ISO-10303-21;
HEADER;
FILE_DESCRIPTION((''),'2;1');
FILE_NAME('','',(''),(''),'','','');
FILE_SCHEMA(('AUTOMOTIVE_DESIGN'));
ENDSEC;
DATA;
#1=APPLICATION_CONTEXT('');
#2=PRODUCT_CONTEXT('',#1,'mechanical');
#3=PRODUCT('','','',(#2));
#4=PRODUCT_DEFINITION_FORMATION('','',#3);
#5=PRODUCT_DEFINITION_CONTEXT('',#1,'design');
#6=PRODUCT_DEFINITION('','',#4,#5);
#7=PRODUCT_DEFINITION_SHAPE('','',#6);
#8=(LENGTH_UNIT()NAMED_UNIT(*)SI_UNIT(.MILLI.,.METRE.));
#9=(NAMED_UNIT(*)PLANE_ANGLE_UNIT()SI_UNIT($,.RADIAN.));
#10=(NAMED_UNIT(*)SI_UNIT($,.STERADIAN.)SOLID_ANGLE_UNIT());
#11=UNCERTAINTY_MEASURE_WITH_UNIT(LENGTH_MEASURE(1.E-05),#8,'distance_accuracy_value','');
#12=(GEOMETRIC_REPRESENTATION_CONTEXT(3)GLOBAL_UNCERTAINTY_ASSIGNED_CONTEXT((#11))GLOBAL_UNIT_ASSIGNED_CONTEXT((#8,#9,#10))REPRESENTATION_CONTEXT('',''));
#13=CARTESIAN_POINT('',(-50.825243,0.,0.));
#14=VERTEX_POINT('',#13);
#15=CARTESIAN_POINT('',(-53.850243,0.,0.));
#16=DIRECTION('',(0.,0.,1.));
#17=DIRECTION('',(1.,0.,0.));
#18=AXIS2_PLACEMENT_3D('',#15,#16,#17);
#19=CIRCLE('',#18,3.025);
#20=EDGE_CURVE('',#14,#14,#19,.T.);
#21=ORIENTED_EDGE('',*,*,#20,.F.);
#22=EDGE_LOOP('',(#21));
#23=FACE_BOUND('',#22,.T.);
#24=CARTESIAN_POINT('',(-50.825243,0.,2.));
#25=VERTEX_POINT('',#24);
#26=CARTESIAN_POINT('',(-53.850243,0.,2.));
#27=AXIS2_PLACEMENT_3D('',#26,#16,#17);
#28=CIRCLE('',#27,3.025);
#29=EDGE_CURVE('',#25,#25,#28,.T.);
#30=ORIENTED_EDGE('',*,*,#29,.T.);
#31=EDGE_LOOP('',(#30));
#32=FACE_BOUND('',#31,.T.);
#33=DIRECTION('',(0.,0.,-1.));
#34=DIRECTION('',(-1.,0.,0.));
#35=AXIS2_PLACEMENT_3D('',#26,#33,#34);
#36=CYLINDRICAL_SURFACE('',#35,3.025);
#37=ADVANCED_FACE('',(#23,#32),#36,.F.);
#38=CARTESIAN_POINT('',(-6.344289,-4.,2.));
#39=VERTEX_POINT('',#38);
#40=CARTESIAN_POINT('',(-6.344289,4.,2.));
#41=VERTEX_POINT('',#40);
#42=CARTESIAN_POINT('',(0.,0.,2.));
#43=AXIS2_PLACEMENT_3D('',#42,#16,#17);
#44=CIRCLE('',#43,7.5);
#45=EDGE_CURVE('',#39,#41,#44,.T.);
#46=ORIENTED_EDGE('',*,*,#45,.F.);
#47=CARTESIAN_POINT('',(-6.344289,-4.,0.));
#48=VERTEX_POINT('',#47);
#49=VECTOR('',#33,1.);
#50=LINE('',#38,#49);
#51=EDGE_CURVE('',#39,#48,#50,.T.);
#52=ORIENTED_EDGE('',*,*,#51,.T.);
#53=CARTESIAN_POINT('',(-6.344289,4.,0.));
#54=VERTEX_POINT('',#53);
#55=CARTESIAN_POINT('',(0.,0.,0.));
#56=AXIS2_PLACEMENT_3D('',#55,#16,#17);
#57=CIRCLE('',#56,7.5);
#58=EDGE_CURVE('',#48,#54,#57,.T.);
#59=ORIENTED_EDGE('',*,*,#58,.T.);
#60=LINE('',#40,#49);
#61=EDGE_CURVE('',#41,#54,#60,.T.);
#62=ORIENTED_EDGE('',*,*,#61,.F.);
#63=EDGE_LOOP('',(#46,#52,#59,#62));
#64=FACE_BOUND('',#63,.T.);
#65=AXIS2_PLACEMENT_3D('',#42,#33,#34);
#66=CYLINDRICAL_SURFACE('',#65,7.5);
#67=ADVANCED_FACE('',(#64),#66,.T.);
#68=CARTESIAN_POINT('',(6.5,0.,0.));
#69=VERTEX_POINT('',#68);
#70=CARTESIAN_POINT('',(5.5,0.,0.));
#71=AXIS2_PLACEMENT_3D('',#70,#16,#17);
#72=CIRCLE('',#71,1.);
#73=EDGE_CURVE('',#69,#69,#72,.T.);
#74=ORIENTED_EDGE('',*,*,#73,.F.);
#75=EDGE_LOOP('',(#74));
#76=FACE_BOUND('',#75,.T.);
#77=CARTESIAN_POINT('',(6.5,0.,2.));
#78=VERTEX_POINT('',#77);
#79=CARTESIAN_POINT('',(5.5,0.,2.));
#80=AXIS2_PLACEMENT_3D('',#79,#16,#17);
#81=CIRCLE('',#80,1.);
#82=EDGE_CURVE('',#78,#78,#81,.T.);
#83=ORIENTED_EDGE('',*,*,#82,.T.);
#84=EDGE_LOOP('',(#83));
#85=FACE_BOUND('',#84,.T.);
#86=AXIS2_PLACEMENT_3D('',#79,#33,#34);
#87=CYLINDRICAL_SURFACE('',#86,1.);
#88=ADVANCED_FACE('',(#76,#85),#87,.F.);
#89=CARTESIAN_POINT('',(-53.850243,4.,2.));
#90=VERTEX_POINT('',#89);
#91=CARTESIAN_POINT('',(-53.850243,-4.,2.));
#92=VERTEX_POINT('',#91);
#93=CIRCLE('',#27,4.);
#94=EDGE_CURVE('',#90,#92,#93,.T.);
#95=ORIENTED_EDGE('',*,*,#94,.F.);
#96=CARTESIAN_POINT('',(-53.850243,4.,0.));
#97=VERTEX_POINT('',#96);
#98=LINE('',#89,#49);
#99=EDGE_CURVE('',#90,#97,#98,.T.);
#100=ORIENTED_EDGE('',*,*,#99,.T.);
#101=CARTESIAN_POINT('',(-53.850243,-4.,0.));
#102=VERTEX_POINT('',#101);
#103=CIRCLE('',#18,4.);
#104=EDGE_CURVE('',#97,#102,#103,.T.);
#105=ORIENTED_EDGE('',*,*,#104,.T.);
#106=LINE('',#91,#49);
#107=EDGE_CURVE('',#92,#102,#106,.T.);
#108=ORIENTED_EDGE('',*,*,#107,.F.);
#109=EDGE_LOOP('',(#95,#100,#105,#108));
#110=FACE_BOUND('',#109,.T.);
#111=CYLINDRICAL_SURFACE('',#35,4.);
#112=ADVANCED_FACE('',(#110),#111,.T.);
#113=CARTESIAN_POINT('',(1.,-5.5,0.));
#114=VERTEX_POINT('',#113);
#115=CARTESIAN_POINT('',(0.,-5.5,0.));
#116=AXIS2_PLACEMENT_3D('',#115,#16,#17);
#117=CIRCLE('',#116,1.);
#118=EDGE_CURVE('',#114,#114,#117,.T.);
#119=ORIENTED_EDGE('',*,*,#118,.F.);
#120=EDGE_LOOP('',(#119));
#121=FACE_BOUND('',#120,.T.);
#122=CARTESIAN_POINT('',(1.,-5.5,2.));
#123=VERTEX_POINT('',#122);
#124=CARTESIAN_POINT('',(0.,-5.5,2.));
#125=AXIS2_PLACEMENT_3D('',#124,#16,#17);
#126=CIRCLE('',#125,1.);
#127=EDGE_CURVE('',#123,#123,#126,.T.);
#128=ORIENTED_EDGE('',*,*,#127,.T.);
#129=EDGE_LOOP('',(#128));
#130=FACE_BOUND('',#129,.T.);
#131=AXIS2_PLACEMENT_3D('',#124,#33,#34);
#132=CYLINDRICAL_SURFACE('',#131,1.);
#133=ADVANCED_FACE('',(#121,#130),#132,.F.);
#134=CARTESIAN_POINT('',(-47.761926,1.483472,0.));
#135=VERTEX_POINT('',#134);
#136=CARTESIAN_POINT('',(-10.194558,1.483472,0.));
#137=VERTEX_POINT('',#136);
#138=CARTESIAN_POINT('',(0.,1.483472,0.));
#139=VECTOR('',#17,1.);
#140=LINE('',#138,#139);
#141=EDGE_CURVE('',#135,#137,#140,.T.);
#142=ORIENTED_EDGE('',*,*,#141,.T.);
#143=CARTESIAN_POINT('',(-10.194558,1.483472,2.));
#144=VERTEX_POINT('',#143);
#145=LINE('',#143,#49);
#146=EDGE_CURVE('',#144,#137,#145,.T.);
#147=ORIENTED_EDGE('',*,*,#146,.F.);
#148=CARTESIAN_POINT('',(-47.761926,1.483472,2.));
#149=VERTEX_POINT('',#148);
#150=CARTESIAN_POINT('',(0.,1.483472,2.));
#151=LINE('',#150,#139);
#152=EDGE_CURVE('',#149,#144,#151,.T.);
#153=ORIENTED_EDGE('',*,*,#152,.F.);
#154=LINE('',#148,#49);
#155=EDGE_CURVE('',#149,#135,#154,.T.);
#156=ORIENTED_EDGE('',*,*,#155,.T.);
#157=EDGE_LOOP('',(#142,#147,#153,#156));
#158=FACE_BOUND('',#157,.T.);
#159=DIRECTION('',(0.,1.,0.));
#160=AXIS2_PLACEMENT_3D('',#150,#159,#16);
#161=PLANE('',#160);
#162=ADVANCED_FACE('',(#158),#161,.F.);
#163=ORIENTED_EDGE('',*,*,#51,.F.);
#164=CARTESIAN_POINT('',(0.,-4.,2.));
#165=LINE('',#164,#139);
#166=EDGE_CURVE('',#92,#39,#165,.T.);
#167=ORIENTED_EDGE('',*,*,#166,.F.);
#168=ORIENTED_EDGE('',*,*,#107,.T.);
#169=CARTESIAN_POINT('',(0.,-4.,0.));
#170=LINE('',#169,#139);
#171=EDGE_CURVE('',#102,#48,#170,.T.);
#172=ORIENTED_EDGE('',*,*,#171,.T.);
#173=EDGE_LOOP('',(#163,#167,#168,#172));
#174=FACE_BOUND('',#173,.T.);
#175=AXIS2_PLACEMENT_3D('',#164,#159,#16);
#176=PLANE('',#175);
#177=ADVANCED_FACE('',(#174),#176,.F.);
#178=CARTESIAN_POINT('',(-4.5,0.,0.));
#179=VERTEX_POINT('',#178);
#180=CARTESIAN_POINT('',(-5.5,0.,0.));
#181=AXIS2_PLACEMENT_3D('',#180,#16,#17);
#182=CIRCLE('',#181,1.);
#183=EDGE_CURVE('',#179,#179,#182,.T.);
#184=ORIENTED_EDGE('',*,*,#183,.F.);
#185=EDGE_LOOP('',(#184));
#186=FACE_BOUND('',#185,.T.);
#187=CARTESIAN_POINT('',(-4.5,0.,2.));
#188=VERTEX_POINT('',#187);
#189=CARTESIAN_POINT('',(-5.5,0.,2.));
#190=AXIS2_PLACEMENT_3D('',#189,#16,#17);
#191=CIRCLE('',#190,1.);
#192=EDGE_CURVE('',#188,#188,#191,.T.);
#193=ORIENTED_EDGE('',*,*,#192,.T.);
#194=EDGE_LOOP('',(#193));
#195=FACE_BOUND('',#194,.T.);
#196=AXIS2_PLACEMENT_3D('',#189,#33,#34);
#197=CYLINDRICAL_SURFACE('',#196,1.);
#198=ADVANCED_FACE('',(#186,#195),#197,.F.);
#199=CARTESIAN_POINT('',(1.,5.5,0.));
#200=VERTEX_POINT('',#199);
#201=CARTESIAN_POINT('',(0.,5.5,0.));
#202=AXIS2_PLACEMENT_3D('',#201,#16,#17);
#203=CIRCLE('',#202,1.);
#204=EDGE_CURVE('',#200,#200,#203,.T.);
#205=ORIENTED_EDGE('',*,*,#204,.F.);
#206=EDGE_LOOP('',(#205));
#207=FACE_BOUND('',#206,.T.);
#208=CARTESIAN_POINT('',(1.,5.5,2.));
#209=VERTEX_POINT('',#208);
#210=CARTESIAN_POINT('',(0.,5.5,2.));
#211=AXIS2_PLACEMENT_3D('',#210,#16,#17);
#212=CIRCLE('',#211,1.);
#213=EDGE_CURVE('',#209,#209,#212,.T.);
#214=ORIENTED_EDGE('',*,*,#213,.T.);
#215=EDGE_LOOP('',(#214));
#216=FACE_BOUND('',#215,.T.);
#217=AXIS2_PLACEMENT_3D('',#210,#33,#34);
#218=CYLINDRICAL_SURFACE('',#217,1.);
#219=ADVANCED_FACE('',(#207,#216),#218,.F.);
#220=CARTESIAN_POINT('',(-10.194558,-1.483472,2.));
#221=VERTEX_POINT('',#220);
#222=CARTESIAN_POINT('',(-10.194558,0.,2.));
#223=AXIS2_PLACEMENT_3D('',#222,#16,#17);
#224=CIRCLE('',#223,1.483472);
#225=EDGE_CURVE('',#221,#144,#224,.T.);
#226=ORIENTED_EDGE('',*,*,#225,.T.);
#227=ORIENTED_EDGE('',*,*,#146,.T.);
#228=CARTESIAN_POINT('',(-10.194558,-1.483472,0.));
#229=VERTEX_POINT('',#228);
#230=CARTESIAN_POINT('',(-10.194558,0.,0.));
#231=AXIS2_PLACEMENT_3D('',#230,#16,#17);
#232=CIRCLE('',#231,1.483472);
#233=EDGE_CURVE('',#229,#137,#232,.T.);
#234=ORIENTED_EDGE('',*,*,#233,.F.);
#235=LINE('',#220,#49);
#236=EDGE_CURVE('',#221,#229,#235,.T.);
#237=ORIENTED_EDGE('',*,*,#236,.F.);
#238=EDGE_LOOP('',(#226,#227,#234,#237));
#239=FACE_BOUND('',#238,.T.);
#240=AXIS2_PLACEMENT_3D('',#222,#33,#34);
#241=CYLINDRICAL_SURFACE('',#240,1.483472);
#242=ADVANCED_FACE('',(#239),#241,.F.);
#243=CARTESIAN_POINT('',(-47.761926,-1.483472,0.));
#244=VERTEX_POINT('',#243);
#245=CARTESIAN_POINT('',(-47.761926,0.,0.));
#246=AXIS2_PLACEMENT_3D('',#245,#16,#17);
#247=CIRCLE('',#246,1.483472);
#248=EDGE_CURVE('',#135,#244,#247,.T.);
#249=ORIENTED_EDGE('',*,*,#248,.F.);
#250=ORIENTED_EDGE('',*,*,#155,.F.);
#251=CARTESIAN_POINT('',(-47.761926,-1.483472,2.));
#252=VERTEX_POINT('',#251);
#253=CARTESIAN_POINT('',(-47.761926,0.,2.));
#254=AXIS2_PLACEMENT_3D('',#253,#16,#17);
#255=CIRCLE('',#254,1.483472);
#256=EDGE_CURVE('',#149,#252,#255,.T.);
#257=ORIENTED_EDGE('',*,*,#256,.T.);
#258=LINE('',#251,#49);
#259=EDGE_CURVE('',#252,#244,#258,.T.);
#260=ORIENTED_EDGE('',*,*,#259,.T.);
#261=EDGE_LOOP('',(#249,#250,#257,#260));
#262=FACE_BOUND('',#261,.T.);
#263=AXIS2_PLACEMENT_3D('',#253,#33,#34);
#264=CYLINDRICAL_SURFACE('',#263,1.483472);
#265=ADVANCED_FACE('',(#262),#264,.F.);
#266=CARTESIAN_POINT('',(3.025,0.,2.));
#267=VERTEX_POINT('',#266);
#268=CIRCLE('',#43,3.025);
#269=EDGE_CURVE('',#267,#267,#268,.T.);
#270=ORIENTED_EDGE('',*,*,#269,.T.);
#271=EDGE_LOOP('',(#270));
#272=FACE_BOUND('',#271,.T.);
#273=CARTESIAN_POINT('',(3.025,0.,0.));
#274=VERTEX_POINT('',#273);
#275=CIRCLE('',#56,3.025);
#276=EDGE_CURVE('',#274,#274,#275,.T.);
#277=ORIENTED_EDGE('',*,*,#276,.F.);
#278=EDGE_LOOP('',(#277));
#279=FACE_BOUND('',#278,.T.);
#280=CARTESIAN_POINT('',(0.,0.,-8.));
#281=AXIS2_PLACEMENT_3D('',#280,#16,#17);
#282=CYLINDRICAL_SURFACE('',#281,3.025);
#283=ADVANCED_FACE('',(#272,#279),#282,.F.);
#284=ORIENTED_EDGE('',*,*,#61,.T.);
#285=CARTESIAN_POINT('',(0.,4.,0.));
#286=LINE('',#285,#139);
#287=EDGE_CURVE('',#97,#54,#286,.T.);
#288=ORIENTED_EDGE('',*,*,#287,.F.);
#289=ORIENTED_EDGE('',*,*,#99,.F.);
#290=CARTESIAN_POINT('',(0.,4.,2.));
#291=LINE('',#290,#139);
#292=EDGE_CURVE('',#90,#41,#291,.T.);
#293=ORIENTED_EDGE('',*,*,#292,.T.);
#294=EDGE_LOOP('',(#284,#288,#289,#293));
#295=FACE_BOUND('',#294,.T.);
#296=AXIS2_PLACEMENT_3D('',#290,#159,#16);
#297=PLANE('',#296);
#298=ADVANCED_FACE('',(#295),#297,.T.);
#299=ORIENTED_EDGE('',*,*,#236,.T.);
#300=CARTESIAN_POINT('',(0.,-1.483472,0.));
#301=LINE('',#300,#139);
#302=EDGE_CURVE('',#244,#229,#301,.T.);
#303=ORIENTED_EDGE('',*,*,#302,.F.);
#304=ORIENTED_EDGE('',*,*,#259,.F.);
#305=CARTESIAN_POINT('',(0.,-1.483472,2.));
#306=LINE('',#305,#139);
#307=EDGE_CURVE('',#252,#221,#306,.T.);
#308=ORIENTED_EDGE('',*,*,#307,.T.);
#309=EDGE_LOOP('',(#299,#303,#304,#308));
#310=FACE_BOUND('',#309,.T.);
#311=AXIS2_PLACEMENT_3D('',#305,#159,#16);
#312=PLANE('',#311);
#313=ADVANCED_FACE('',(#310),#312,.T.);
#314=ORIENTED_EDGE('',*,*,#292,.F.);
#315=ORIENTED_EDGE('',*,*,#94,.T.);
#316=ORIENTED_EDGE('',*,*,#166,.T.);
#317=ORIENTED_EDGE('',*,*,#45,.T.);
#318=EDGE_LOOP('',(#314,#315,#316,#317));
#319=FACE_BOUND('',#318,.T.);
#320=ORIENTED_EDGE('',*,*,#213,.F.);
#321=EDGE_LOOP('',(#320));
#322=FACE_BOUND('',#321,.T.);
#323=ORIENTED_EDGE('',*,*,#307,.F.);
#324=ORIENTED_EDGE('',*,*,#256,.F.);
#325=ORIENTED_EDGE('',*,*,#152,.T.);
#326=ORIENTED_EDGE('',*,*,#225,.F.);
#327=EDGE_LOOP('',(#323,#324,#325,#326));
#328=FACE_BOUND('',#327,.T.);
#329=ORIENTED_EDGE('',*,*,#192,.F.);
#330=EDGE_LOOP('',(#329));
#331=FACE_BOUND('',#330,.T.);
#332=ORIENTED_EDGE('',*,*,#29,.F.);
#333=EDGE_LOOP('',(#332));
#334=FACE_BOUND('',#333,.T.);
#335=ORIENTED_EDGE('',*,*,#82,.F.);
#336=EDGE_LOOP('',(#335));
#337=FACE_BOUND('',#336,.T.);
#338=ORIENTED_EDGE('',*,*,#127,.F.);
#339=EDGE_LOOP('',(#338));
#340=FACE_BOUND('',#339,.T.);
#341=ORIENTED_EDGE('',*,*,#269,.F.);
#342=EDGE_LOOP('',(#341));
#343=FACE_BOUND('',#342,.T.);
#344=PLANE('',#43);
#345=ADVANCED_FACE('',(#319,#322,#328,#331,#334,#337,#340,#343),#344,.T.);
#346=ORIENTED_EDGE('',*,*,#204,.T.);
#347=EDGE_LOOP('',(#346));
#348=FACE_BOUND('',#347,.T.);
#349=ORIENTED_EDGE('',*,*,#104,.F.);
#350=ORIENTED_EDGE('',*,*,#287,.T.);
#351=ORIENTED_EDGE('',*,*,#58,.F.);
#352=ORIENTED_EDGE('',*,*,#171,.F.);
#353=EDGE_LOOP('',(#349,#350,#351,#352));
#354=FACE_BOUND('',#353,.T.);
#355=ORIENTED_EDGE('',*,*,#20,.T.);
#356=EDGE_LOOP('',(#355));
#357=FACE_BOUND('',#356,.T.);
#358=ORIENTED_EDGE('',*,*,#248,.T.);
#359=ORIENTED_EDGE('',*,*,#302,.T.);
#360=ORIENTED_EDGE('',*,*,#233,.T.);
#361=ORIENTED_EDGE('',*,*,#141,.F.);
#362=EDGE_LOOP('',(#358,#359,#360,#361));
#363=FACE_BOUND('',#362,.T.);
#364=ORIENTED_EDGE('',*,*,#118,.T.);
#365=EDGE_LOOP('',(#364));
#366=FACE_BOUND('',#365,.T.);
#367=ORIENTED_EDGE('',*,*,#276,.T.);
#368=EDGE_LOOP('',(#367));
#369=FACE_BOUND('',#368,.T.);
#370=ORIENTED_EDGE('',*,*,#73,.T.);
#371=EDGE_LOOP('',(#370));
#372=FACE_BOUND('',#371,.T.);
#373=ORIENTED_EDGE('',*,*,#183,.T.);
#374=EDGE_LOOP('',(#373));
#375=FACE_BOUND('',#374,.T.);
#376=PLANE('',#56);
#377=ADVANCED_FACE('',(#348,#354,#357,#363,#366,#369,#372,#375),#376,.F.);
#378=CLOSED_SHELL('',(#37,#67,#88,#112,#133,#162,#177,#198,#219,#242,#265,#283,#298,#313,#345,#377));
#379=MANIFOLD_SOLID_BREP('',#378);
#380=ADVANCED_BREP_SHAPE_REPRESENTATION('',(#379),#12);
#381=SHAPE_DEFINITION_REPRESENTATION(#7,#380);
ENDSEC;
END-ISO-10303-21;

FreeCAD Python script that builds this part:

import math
import FreeCAD as App
import Part
import Sketcher
from FreeCAD import Vector

doc = App.newDocument("Part")
body = doc.addObject("PartDesign::Body", "Body")

# Sketch on XY plane
sketch1 = body.newObject("Sketcher::SketchObject", "Sketch")
sketch1.AttachmentSupport = (doc.getObject("XY_Plane"), [""])
sketch1.MapMode = "FlatFace"
sketch1.addGeometry(Part.LineSegment(Vector(-6.3, 4, 0), Vector(-53.9, 4, 0)), False)
sketch1.addGeometry(Part.ArcOfCircle(Part.Circle(Vector(-53.9, 0, 0), Vector(0, 0, 1), 4), math.radians(90), math.radians(270)), False)
sketch1.addGeometry(Part.LineSegment(Vector(-53.9, -4, 0), Vector(-6.3, -4, 0)), False)
sketch1.addGeometry(Part.ArcOfCircle(Part.Circle(Vector(0, 0, 0), Vector(0, 0, 1), 7.5), math.radians(-148), math.radians(148)), False)
sketch1.addGeometry(Part.Circle(Vector(0, -5.5, 0), Vector(0, 0, 1), 1), False)
sketch1.addGeometry(Part.Circle(Vector(5.5, 0, 0), Vector(0, 0, 1), 1), False)
sketch1.addGeometry(Part.Circle(Vector(0, 0, 0), Vector(0, 0, 1), 1.5), False)
sketch1.addGeometry(Part.Circle(Vector(-5.5, 0, 0), Vector(0, 0, 1), 1), False)
sketch1.addGeometry(Part.Circle(Vector(0, 5.5, 0), Vector(0, 0, 1), 1), False)
sketch1.addGeometry(Part.LineSegment(Vector(-10.2, -1.5, 0), Vector(-47.8, -1.5, 0)), False)
sketch1.addGeometry(Part.ArcOfCircle(Part.Circle(Vector(-47.8, 0, 0), Vector(0, 0, 1), 1.5), math.radians(90), math.radians(270)), False)
sketch1.addGeometry(Part.LineSegment(Vector(-47.8, 1.5, 0), Vector(-10.2, 1.5, 0)), False)
sketch1.addGeometry(Part.ArcOfCircle(Part.Circle(Vector(-10.2, 0, 0), Vector(0, 0, 1), 1.5), math.radians(-90), math.radians(90)), False)
sketch1.addGeometry(Part.Circle(Vector(-53.9, 0, 0), Vector(0, 0, 1), 3), False)
sketch1.addConstraint(Sketcher.Constraint("Tangent", 0, 2, 1, 1))
sketch1.addConstraint(Sketcher.Constraint("Tangent", 1, 2, 2, 1))
sketch1.addConstraint(Sketcher.Constraint("Coincident", 2, 2, 3, 1))
sketch1.addConstraint(Sketcher.Constraint("Coincident", 3, 2, 0, 1))
sketch1.addConstraint(Sketcher.Constraint("Tangent", 9, 2, 10, 2))
sketch1.addConstraint(Sketcher.Constraint("Tangent", 10, 1, 11, 1))
sketch1.addConstraint(Sketcher.Constraint("Tangent", 11, 2, 12, 2))
sketch1.addConstraint(Sketcher.Constraint("Tangent", 12, 1, 9, 1))
sketch1.addConstraint(Sketcher.Constraint("Horizontal", 0))
sketch1.addConstraint(Sketcher.Constraint("Horizontal", 2))
sketch1.addConstraint(Sketcher.Constraint("Horizontal", 9))
sketch1.addConstraint(Sketcher.Constraint("Horizontal", 11))
sketch1.addConstraint(Sketcher.Constraint("Coincident", 3, 3, -1, 1))
sketch1.addConstraint(Sketcher.Constraint("Coincident", 6, 3, -1, 1))
sketch1.addConstraint(Sketcher.Constraint("Coincident", 13, 3, 1, 3))
sketch1.addConstraint(Sketcher.Constraint("Equal", 4, 5))
sketch1.addConstraint(Sketcher.Constraint("Equal", 5, 7))
sketch1.addConstraint(Sketcher.Constraint("Equal", 7, 8))
sketch1.addConstraint(Sketcher.Constraint("Symmetric", 5, 3, 7, 3, -1, 1))
sketch1.addConstraint(Sketcher.Constraint("Symmetric", 4, 3, 8, 3, -1, 1))
sketch1.addConstraint(Sketcher.Constraint("PointOnObject", 1, 3, -1))
sketch1.addConstraint(Sketcher.Constraint("PointOnObject", 4, 3, -2))
sketch1.addConstraint(Sketcher.Constraint("PointOnObject", 5, 3, -1))
sketch1.addConstraint(Sketcher.Constraint("PointOnObject", 10, 3, -1))
sketch1.addConstraint(Sketcher.Constraint("Diameter", 4, 2.0))
sketch1.addConstraint(Sketcher.Constraint("Diameter", 6, 3.0))
sketch1.addConstraint(Sketcher.Constraint("Radius", 1, 4.0))
sketch1.addConstraint(Sketcher.Constraint("Radius", 3, 7.5))
sketch1.addConstraint(Sketcher.Constraint("Diameter", 13, 6.05))
sketch1.addConstraint(Sketcher.Constraint("DistanceX", 7, 3, 5, 3, 11.0))
sketch1.addConstraint(Sketcher.Constraint("DistanceY", 4, 3, 8, 3, 11.0))
sketch1.addConstraint(Sketcher.Constraint("Radius", 10, 1.483472))
sketch1.addConstraint(Sketcher.Constraint("DistanceX", 9, 2, 9, 1, 37.567368))
sketch1.addConstraint(Sketcher.Constraint("DistanceX", 0, 2, 0, 1, 47.505954))
sketch1.addConstraint(Sketcher.Constraint("DistanceX", 12, 3, -1, 1, 10.194558))
pad1 = body.newObject("PartDesign::Pad", "Pad")
pad1.Profile = sketch1
pad1.Length = 2

# Sketch on XY plane
sketch2 = body.newObject("Sketcher::SketchObject", "Sketch001")
sketch2.AttachmentSupport = (doc.getObject("XY_Plane"), [""])
sketch2.MapMode = "FlatFace"
sketch2.AttachmentOffset = App.Placement(Vector(0, 0, 2), App.Rotation())
sketch2.addGeometry(Part.Circle(Vector(0, 0, 0), Vector(0, 0, 1), 3), False)
sketch2.addConstraint(Sketcher.Constraint("Coincident", 0, 3, -1, 1))
sketch2.addConstraint(Sketcher.Constraint("Diameter", 0, 6.05))
pocket1 = body.newObject("PartDesign::Pocket", "Pocket")
pocket1.Profile = sketch2
pocket1.Length = 10

doc.recompute()
